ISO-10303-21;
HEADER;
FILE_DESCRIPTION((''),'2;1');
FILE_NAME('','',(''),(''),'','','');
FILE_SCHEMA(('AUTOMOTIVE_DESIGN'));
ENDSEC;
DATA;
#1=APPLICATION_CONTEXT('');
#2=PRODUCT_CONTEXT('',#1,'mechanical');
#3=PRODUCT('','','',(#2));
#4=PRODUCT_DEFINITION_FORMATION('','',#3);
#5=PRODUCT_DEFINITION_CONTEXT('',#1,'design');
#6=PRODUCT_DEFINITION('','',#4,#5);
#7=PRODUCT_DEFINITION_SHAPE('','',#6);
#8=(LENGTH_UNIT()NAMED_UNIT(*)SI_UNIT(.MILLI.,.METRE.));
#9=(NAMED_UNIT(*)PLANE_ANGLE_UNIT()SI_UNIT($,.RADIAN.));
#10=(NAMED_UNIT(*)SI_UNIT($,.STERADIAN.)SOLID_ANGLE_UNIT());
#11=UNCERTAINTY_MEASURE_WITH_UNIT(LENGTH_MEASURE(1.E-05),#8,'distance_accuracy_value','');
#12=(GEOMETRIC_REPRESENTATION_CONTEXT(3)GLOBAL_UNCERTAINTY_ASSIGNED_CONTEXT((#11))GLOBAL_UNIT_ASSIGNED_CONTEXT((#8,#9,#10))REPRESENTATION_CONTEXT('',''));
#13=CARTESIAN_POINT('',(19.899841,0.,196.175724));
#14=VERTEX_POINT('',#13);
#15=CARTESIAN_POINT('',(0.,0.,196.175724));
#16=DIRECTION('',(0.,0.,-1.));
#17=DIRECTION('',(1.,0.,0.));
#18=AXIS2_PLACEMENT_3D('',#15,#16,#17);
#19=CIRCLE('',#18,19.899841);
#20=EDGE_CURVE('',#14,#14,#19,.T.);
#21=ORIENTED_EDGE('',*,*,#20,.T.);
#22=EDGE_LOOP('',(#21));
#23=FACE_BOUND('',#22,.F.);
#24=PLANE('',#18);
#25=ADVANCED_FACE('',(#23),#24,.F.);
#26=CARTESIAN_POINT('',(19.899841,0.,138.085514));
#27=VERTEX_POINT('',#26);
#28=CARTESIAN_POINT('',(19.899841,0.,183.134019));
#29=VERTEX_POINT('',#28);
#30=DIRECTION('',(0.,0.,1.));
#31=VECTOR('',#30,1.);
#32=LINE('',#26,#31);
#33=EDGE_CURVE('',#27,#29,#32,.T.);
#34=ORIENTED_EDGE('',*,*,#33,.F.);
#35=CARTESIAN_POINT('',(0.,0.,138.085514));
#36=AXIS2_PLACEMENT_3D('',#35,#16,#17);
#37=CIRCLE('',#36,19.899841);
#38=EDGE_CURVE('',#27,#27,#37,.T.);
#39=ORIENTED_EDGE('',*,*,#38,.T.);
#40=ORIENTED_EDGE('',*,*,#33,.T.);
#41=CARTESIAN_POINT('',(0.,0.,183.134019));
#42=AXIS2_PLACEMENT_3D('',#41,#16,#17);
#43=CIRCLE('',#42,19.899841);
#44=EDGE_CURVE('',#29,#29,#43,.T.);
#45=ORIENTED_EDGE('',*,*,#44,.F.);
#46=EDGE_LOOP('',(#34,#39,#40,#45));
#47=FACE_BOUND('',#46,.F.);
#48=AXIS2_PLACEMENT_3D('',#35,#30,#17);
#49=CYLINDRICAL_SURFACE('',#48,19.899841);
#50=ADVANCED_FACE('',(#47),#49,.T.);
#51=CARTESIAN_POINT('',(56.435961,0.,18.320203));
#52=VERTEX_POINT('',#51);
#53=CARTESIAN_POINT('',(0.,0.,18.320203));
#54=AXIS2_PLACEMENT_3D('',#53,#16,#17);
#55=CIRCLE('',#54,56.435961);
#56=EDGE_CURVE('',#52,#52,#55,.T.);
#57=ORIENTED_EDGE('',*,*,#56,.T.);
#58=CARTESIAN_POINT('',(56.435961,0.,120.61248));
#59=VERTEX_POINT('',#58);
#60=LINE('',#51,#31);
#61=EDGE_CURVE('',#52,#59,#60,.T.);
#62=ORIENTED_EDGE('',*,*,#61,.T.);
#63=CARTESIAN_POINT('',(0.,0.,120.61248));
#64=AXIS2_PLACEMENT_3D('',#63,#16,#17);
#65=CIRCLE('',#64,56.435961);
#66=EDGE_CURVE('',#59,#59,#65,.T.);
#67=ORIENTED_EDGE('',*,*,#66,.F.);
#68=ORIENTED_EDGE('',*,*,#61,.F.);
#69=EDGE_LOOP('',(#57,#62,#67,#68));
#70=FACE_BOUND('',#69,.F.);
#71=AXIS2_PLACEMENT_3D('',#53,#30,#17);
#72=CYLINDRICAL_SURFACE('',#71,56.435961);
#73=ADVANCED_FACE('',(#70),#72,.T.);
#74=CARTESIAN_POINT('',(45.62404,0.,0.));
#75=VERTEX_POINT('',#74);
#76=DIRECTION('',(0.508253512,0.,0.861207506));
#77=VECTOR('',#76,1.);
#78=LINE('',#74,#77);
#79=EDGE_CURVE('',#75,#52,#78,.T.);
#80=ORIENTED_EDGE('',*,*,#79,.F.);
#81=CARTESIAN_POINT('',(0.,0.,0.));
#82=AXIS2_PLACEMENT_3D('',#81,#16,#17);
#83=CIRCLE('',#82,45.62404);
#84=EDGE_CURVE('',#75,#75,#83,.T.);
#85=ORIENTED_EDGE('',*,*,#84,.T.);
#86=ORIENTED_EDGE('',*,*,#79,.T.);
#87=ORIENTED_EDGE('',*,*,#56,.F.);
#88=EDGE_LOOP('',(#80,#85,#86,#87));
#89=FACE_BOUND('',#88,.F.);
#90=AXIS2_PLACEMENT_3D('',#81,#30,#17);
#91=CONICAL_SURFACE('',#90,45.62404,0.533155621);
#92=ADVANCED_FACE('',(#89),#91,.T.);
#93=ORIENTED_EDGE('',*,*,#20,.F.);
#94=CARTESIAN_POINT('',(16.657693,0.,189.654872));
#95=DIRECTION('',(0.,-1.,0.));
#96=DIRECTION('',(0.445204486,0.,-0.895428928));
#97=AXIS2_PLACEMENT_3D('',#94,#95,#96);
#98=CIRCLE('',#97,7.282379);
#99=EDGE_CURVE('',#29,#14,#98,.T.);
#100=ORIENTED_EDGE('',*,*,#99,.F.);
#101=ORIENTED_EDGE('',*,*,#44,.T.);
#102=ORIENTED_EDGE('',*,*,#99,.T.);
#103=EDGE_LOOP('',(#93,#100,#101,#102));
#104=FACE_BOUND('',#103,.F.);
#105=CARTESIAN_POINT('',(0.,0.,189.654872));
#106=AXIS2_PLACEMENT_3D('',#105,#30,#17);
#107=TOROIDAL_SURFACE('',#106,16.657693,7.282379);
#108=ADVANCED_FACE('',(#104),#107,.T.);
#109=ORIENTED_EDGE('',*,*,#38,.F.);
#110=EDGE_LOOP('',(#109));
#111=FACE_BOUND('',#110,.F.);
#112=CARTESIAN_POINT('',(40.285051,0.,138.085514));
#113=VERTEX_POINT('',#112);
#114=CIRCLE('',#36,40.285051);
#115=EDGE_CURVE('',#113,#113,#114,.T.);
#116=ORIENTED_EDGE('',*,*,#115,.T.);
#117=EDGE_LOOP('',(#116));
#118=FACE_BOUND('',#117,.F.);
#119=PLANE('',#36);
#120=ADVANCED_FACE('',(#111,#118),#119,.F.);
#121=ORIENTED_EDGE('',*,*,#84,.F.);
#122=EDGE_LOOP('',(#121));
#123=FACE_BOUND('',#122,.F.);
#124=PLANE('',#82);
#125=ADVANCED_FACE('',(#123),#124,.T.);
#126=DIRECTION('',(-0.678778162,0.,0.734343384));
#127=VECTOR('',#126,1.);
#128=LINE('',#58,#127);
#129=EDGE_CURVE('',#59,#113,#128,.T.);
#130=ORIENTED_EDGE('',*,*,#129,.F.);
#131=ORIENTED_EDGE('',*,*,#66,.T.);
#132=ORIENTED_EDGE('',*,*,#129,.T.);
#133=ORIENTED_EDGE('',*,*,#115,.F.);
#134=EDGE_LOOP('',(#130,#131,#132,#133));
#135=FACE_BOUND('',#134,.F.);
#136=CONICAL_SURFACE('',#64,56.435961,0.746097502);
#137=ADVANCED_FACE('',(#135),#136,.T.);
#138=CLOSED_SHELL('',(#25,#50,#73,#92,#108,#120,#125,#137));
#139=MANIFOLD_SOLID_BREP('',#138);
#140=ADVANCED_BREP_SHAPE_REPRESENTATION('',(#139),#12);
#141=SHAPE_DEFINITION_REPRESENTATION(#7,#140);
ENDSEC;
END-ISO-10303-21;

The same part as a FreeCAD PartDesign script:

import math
import FreeCAD as App
import Part
import Sketcher
Q = App.Units.Quantity

doc = App.newDocument("Part")
body = doc.addObject("PartDesign::Body", "Body")

sketch1 = body.newObject("Sketcher::SketchObject", "Sketch")
sketch1.AttachmentSupport = (doc.getObject("XZ_Plane"), [""])
sketch1.MapMode = "FlatFace"
sketch1.addGeometry([
    Part.LineSegment(App.Vector(0, 196, 0), App.Vector(0, 0, 0)),
    Part.LineSegment(App.Vector(0, 0, 0), App.Vector(46, 0, 0)),
    Part.LineSegment(App.Vector(46, 0, 0), App.Vector(56, 18, 0)),
    Part.LineSegment(App.Vector(56, 18, 0), App.Vector(56, 121, 0)),
    Part.LineSegment(App.Vector(56, 121, 0), App.Vector(40, 138, 0)),
    Part.LineSegment(App.Vector(40, 138, 0), App.Vector(20, 138, 0)),
    Part.LineSegment(App.Vector(20, 138, 0), App.Vector(20, 183, 0)),
    Part.ArcOfCircle(Part.Circle(App.Vector(17, 190, 0), App.Vector(0, 0, 1), 7), math.radians(-64), math.radians(64)),
    Part.LineSegment(App.Vector(20, 196, 0), App.Vector(0, 196, 0)),
], False)
sketch1.addConstraint([
    Sketcher.Constraint("Coincident", 0, 2, 1, 1),
    Sketcher.Constraint("Coincident", 1, 2, 2, 1),
    Sketcher.Constraint("Coincident", 2, 2, 3, 1),
    Sketcher.Constraint("Coincident", 3, 2, 4, 1),
    Sketcher.Constraint("Coincident", 4, 2, 5, 1),
    Sketcher.Constraint("Coincident", 5, 2, 6, 1),
    Sketcher.Constraint("Coincident", 6, 2, 7, 1),
    Sketcher.Constraint("Coincident", 7, 2, 8, 1),
    Sketcher.Constraint("Coincident", 8, 2, 0, 1),
    Sketcher.Constraint("Vertical", 0),
    Sketcher.Constraint("Horizontal", 1),
    Sketcher.Constraint("Vertical", 3),
    Sketcher.Constraint("Horizontal", 5),
    Sketcher.Constraint("Vertical", 6),
    Sketcher.Constraint("Horizontal", 8),
    Sketcher.Constraint("Coincident", 0, 2, -1, 1),
    Sketcher.Constraint("Vertical", 6, 2, 7, 2),
    Sketcher.Constraint("Radius", 7, Q("7.282379 mm")),
    Sketcher.Constraint("DistanceX", 1, 1, 1, 2, Q("45.62404 mm")),
    Sketcher.Constraint("DistanceX", 5, 2, 5, 1, Q("20.38521 mm")),
    Sketcher.Constraint("DistanceX", 8, 2, 8, 1, Q("19.899841 mm")),
    Sketcher.Constraint("Distance", 4, Q("23.794092 mm")),
    Sketcher.Constraint("DistanceY", 0, 2, 0, 1, Q("196.175724 mm")),
    Sketcher.Constraint("DistanceY", 3, 1, 3, 2, Q("102.292277 mm")),
    Sketcher.Constraint("DistanceY", 6, 1, 6, 2, Q("45.048505 mm")),
    Sketcher.Constraint("DistanceY", -1, 1, 7, 3, Q("189.654872 mm")),
    Sketcher.Constraint("DistanceX", -1, 1, 2, 2, Q("56.435961 mm")),
])
revolution = body.newObject("PartDesign::Revolution", "Revolution")
revolution.Profile = sketch1
revolution.ReferenceAxis = (sketch1, ["V_Axis"])
revolution.Angle = 360

doc.recompute()
